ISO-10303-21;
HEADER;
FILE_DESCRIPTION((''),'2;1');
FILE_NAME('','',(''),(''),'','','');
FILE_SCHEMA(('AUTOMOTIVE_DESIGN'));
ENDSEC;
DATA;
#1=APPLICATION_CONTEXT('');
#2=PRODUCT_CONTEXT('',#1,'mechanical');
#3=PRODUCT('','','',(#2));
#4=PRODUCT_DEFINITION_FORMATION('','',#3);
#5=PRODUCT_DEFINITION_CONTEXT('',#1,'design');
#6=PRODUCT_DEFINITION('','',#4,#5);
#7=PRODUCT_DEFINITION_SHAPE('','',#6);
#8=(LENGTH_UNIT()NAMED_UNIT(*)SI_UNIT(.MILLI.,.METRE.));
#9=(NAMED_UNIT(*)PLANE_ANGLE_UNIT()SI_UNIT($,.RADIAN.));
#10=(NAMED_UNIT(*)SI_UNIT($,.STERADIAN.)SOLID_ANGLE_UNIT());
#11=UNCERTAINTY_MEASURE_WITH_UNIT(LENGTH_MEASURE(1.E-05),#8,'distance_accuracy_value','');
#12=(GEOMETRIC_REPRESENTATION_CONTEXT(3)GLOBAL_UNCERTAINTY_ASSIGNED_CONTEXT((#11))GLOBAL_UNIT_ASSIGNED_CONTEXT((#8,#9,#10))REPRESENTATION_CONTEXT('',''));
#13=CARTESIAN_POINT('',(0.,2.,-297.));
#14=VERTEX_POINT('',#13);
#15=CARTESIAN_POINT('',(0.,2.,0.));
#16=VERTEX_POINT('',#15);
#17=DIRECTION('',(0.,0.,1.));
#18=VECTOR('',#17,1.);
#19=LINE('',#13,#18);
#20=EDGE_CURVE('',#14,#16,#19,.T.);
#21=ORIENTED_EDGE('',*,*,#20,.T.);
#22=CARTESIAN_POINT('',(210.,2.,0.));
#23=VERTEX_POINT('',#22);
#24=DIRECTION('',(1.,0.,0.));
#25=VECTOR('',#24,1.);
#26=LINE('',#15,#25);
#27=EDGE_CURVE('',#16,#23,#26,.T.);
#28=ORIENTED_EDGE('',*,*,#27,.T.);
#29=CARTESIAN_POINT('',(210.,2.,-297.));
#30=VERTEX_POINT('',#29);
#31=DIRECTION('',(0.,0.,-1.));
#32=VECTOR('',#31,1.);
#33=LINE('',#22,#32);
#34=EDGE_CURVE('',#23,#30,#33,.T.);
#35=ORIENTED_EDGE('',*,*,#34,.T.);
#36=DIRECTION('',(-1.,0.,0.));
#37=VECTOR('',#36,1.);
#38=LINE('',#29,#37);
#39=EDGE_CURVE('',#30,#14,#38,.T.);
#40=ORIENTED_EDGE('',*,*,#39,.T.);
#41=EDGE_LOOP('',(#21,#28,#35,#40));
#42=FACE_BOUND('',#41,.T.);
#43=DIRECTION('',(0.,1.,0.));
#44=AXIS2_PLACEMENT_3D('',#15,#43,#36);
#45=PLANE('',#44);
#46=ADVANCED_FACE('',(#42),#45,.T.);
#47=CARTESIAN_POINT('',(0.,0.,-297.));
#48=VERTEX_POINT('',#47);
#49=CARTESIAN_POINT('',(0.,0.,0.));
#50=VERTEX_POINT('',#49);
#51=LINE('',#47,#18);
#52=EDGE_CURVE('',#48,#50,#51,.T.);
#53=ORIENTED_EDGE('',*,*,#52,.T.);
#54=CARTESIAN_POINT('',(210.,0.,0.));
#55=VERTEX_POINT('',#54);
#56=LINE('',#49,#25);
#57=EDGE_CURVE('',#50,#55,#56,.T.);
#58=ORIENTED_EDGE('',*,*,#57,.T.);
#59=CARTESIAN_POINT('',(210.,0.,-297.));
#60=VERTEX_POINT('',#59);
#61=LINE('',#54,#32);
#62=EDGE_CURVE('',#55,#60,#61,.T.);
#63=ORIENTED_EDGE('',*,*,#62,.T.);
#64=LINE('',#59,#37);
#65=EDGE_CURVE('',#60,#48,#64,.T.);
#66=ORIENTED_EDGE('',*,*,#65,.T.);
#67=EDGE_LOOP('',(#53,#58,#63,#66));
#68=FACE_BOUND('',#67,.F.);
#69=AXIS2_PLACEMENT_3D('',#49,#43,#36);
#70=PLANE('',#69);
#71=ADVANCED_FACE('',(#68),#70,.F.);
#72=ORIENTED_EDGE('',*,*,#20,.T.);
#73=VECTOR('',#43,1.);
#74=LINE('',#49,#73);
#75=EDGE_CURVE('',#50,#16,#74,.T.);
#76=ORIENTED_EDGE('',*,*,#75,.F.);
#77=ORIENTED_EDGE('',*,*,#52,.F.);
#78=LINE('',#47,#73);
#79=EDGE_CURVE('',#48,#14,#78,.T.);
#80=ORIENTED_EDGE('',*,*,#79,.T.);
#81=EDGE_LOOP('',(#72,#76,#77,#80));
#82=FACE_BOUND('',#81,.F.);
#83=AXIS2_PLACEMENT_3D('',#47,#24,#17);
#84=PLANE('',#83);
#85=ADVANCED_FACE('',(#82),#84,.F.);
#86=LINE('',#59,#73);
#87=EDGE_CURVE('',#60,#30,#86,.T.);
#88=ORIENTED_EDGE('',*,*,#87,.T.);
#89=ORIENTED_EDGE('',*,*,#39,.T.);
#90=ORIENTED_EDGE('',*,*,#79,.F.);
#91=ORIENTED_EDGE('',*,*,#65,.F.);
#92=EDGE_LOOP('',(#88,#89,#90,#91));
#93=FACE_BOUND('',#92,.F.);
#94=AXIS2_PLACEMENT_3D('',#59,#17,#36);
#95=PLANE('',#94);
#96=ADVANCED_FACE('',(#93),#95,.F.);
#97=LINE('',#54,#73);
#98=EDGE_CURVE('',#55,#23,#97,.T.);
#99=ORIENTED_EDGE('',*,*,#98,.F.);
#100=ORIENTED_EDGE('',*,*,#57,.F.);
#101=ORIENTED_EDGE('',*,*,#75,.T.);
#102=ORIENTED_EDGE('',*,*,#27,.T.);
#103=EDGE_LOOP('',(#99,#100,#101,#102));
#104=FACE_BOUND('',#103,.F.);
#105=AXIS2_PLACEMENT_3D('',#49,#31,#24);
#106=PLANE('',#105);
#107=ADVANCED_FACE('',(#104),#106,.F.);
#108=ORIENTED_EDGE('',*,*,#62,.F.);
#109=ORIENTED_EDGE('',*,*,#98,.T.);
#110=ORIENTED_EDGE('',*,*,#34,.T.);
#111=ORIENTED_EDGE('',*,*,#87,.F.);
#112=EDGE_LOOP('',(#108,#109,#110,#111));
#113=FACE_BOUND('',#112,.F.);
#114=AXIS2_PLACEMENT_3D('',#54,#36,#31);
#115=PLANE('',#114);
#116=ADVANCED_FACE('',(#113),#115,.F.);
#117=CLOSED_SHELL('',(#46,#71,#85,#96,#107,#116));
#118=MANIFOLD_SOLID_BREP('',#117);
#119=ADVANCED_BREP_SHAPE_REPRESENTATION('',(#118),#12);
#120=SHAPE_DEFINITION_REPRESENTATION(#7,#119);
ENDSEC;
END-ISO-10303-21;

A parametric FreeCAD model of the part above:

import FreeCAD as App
import Part
import Sketcher
Q = App.Units.Quantity


def add_polygon(sketch, points):
    """Adds a closed chain of lines whose ends are joined by coincident constraints."""
    first, n = sketch.GeometryCount, len(points)
    for a, b in zip(points, points[1:] + points[:1]):
        sketch.addGeometry(Part.LineSegment(App.Vector(*a, 0), App.Vector(*b, 0)), False)
    for i in range(n):
        sketch.addConstraint(Sketcher.Constraint("Coincident", first + i, 2, first + (i + 1) % n, 1))

doc = App.newDocument("Part")
params = doc.addObject("Spreadsheet::Sheet", "Params")
for row, (alias, value) in enumerate([
    ("sketch1_width", "210 mm"),
    ("sketch1_height", "297 mm"),
    ("pad1_length", "2 mm"),
], start=1):
    params.set(f"A{row}", alias)
    params.set(f"B{row}", "=" + value)
    params.setAlias(f"B{row}", alias)

body = doc.addObject("PartDesign::Body", "Body")

# Sketch on XZ plane
sketch1 = body.newObject("Sketcher::SketchObject", "Sketch")
sketch1.AttachmentSupport = (doc.getObject("XZ_Plane"), [""])
sketch1.MapMode = "FlatFace"
add_polygon(sketch1, [(0, -297), (0, 0), (210, 0), (210, -297)])  # lines 0-3
sketch1.addConstraint(Sketcher.Constraint("Vertical", 0))
sketch1.addConstraint(Sketcher.Constraint("Horizontal", 1))
sketch1.addConstraint(Sketcher.Constraint("Vertical", 2))
sketch1.addConstraint(Sketcher.Constraint("Horizontal", 3))
sketch1.addConstraint(Sketcher.Constraint("Coincident", 0, 2, -1, 1))
sketch1.addConstraint(Sketcher.Constraint("DistanceX", 1, 1, 1, 2, Q("210 mm")))
sketch1.addConstraint(Sketcher.Constraint("DistanceY", 0, 1, 0, 2, Q("297 mm")))
sketch1.setExpression("Constraints[9]", "Params.sketch1_width")
sketch1.setExpression("Constraints[10]", "Params.sketch1_height")
pad1 = body.newObject("PartDesign::Pad", "Pad")
pad1.Profile = sketch1
pad1.setExpression("Length", "Params.pad1_length")
pad1.Reversed = True

doc.recompute()
